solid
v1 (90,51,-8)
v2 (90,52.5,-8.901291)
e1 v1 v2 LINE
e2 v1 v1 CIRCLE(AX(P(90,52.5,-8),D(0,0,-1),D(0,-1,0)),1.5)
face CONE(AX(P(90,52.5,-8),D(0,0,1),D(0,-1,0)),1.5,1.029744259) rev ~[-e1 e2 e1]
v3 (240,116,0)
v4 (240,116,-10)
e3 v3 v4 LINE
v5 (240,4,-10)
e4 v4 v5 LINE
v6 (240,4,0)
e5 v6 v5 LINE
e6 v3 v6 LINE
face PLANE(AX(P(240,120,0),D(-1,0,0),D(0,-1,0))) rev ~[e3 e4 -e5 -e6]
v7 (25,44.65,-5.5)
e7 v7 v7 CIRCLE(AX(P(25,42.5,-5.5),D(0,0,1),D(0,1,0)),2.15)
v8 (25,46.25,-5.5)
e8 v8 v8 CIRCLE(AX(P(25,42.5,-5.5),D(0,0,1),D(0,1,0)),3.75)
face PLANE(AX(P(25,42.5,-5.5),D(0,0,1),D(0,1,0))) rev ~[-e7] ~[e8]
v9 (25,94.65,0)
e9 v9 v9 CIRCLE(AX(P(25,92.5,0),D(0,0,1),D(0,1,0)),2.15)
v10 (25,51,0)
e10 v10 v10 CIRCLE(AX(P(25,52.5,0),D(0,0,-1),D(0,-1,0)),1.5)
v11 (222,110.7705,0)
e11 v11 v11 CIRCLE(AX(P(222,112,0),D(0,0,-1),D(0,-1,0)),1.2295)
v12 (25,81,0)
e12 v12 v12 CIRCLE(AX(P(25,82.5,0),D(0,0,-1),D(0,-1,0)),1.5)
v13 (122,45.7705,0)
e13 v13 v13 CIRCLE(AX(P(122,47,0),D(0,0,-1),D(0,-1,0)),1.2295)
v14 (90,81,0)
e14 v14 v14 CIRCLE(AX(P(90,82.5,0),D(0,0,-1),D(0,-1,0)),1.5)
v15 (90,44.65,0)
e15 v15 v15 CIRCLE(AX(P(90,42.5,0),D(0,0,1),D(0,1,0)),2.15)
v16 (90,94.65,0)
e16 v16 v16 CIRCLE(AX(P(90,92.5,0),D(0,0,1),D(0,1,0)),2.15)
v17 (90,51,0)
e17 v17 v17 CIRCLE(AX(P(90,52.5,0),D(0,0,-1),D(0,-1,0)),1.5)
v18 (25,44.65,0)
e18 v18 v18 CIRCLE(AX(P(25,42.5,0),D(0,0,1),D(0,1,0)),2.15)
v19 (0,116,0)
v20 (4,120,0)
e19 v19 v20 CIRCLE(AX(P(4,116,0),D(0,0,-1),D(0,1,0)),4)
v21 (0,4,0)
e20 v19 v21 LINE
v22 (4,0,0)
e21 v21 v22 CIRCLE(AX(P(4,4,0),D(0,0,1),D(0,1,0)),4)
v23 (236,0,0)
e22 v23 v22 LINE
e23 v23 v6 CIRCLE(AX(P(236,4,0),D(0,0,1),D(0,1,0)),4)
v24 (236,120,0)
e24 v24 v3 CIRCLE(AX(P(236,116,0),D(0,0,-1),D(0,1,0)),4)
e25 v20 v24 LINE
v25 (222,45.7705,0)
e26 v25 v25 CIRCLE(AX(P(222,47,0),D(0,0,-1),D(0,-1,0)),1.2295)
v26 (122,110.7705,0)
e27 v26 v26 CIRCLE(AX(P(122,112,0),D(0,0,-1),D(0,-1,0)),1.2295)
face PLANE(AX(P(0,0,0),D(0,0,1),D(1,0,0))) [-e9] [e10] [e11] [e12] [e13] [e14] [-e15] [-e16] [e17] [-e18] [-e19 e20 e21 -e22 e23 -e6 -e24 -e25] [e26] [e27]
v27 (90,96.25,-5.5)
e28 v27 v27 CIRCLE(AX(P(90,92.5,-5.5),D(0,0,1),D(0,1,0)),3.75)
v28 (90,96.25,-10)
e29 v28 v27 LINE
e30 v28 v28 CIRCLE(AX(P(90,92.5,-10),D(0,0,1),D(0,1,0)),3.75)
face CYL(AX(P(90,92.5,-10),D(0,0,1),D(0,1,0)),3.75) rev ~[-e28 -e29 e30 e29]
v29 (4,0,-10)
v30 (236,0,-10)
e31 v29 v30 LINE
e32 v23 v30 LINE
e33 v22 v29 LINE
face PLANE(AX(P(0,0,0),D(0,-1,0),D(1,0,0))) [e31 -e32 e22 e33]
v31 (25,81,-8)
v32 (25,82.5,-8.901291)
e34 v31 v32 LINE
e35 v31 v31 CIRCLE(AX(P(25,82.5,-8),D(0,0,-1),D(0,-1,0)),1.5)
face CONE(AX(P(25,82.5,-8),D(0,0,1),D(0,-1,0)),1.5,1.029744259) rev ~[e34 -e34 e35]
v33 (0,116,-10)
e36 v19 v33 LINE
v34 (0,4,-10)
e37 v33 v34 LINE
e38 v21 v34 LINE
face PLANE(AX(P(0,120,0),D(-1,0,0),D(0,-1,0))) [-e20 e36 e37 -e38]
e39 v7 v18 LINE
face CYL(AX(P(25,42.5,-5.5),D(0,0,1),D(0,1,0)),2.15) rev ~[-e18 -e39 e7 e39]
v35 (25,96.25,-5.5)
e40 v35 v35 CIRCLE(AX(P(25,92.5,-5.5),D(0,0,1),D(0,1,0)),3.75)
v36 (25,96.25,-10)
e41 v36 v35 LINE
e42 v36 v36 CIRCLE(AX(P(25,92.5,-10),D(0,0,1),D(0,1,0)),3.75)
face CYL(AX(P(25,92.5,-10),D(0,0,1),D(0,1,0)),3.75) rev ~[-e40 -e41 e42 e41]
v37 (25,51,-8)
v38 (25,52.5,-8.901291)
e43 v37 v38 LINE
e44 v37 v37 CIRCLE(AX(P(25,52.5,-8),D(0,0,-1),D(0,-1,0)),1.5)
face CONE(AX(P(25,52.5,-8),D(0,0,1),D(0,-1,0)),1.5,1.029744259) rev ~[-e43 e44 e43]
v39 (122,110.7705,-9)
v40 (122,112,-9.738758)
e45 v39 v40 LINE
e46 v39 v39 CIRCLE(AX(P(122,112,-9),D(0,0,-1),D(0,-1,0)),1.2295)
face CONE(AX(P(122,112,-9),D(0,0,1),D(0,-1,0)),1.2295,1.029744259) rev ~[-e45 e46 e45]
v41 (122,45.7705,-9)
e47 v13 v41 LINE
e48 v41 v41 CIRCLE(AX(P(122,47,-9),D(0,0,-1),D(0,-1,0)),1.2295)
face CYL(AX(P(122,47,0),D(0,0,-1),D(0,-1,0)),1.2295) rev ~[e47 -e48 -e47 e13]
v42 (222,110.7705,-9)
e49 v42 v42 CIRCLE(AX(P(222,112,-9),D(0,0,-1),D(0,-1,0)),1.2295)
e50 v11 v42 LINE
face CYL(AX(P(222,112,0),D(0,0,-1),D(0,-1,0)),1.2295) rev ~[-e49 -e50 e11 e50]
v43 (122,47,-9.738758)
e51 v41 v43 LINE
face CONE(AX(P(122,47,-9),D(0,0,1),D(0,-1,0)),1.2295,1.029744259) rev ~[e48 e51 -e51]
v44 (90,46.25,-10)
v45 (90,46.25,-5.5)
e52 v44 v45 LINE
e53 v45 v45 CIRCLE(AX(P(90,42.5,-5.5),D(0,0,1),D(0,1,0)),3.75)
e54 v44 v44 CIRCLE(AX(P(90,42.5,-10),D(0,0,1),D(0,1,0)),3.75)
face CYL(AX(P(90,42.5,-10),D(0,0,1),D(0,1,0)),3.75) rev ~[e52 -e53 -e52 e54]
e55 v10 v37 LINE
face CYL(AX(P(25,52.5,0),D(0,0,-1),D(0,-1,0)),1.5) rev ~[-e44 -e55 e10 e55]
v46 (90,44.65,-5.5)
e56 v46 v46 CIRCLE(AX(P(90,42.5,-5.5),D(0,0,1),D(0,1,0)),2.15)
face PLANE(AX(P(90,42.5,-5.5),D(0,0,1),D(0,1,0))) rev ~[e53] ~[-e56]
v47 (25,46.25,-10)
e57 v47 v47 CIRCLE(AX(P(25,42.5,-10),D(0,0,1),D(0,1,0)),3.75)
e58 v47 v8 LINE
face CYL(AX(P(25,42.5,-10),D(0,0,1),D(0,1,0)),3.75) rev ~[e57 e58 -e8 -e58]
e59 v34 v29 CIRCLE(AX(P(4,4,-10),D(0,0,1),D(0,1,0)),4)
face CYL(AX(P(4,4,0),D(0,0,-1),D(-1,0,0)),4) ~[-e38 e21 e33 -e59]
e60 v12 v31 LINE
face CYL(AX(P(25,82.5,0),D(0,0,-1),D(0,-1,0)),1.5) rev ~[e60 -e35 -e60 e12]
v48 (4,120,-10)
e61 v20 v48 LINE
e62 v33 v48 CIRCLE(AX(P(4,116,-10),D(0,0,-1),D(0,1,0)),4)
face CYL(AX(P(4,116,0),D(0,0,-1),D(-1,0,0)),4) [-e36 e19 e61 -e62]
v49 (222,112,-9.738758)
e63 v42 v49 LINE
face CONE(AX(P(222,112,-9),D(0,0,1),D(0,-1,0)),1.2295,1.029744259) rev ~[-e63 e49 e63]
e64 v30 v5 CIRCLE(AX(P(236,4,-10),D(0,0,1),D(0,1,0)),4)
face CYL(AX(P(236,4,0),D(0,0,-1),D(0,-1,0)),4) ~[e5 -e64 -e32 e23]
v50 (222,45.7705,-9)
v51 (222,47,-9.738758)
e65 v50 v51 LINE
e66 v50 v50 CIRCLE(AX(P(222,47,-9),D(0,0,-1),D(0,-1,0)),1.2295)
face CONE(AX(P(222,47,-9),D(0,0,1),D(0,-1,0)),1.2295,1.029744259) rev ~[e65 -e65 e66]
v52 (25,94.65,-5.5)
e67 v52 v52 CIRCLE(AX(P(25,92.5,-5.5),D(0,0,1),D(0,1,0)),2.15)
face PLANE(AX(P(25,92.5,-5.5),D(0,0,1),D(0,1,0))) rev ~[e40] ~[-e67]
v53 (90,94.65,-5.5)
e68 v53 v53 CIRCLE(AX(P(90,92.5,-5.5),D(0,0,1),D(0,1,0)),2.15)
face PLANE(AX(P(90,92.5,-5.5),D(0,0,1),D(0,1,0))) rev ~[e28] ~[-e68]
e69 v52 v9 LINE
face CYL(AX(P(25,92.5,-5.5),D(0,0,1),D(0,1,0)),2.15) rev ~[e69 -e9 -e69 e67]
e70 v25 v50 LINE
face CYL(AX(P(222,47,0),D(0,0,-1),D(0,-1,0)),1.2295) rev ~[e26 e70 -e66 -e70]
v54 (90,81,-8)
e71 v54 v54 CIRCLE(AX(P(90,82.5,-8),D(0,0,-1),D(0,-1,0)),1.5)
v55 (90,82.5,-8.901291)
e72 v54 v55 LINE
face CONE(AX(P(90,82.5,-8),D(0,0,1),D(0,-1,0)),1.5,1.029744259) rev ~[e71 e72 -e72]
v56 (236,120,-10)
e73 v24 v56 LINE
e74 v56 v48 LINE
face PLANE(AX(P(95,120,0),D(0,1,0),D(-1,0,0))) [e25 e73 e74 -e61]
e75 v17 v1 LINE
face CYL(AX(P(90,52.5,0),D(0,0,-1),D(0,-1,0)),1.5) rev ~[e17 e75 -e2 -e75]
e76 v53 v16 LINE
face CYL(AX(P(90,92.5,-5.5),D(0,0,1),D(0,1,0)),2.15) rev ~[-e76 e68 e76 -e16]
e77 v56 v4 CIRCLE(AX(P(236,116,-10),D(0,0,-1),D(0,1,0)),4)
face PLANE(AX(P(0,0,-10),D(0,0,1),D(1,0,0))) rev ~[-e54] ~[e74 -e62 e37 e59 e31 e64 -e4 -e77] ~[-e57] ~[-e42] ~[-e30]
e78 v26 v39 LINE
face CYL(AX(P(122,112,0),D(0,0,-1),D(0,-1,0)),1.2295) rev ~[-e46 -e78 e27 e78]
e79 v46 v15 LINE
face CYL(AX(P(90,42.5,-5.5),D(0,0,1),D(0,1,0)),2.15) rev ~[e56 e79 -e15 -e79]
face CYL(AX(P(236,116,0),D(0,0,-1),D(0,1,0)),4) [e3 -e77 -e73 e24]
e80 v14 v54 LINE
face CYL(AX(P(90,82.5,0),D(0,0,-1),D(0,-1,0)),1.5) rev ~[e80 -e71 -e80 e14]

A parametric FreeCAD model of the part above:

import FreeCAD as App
import Part
import Sketcher

V = App.Vector


def edges_at(feature, points):
    """Names of the edges that pass closest to the given points."""
    edges = feature.Shape.Edges
    near = lambda p: min(range(len(edges)), key=lambda i: edges[i].distToShape(Part.Vertex(*p))[0])
    return sorted({f"Edge{near(p) + 1}" for p in points})

doc = App.newDocument("Part")
body = doc.addObject("PartDesign::Body", "Body")

# Sketch on XY plane
sketch1 = doc.addObject("Sketcher::SketchObject", "Sketch")
body.addObject(sketch1)
sketch1.AttachmentSupport = (doc.XY_Plane, [""])
sketch1.MapMode = "FlatFace"
sketch1.addGeometry([
    Part.LineSegment(V(0, 120, 0), V(0, 0, 0)),  # 0
    Part.LineSegment(V(0, 0, 0), V(240, 0, 0)),  # 1
    Part.LineSegment(V(240, 0, 0), V(240, 120, 0)),  # 2
    Part.LineSegment(V(240, 120, 0), V(0, 120, 0)),  # 3
    Part.Circle(V(25, 42.5, 0), V(0, 0, 1), 1.5),  # 4
    Part.Circle(V(90, 42.5, 0), V(0, 0, 1), 1.5),  # 5
    Part.Circle(V(25, 92.5, 0), V(0, 0, 1), 1.5),  # 6
    Part.Circle(V(90, 92.5, 0), V(0, 0, 1), 1.5),  # 7
], False)
sketch1.addConstraint([
    Sketcher.Constraint("Coincident", 0, 2, 1, 1),
    Sketcher.Constraint("Coincident", 1, 2, 2, 1),
    Sketcher.Constraint("Coincident", 2, 2, 3, 1),
    Sketcher.Constraint("Coincident", 3, 2, 0, 1),
    Sketcher.Constraint("Vertical", 0),
    Sketcher.Constraint("Horizontal", 1),
    Sketcher.Constraint("Vertical", 2),
    Sketcher.Constraint("Horizontal", 3),
    Sketcher.Constraint("Coincident", 0, 2, -1, 1),
    Sketcher.Constraint("Equal", 4, 5),
    Sketcher.Constraint("Equal", 5, 6),
    Sketcher.Constraint("Equal", 6, 7),
    Sketcher.Constraint("Horizontal", 4, 3, 5, 3),
    Sketcher.Constraint("Horizontal", 6, 3, 7, 3),
    Sketcher.Constraint("Vertical", 4, 3, 6, 3),
    Sketcher.Constraint("Vertical", 5, 3, 7, 3),
    Sketcher.Constraint("Diameter", 4, 3.0),
    Sketcher.Constraint("DistanceX", 1, 1, 1, 2, 240.0),
    Sketcher.Constraint("DistanceY", 0, 2, 0, 1, 120.0),
    Sketcher.Constraint("DistanceX", 4, 3, 5, 3, 65.0),
    Sketcher.Constraint("DistanceY", 4, 3, 6, 3, 50.0),
    Sketcher.Constraint("DistanceY", -1, 1, 4, 3, 42.5),
    Sketcher.Constraint("DistanceX", -1, 1, 4, 3, 25.0),
])
pad1 = doc.addObject("PartDesign::Pad", "Pad")
body.addObject(pad1)
pad1.Profile = sketch1
pad1.Length = 10
pad1.Reversed = True

# Sketch on XY plane
sketch2 = doc.addObject("Sketcher::SketchObject", "Sketch001")
body.addObject(sketch2)
sketch2.AttachmentSupport = (doc.XY_Plane, [""])
sketch2.MapMode = "FlatFace"
sketch2.addGeometry([
    Part.Circle(V(122, 112, 0), V(0, 0, 1), 1.2295),
    Part.Circle(V(222, 112, 0), V(0, 0, 1), 1.2295),
    Part.Circle(V(222, 47, 0), V(0, 0, 1), 1.2295),
    Part.Circle(V(122, 47, 0), V(0, 0, 1), 1.2295),
], False)
sketch2.addConstraint([
    Sketcher.Constraint("Equal", 0, 1),
    Sketcher.Constraint("Equal", 1, 2),
    Sketcher.Constraint("Equal", 2, 3),
    Sketcher.Constraint("Horizontal", 0, 3, 1, 3),
    Sketcher.Constraint("Horizontal", 2, 3, 3, 3),
    Sketcher.Constraint("Vertical", 1, 3, 2, 3),
    Sketcher.Constraint("Vertical", 0, 3, 3, 3),
    Sketcher.Constraint("Diameter", 0, 2.459),
    Sketcher.Constraint("DistanceX", -1, 1, 0, 3, 122.0),
    Sketcher.Constraint("DistanceY", -1, 1, 0, 3, 112.0),
    Sketcher.Constraint("DistanceX", -1, 1, 1, 3, 222.0),
    Sketcher.Constraint("DistanceY", -1, 1, 2, 3, 47.0),
])
doc.recompute()
hole = doc.addObject("PartDesign::Hole", "Hole")
body.addObject(hole)
hole.Profile = sketch2
hole.ThreadType = "None"
hole.Diameter = 2.459
hole.DepthType = "Dimension"
hole.Depth = 9
hole.DrillPoint = "Angled"
hole.DrillPointAngle = 118

# Sketch on XY plane
sketch3 = doc.addObject("Sketcher::SketchObject", "Sketch002")
body.addObject(sketch3)
sketch3.AttachmentSupport = (doc.XY_Plane, [""])
sketch3.MapMode = "FlatFace"
sketch3.AttachmentOffset = App.Placement(V(0, 0, -10), App.Rotation())
sketch3.addGeometry([
    Part.Circle(V(25, 42.5, 0), V(0, 0, 1), 2.15),
    Part.Circle(V(90, 42.5, 0), V(0, 0, 1), 2.15),
    Part.Circle(V(90, 92.5, 0), V(0, 0, 1), 2.15),
    Part.Circle(V(25, 92.5, 0), V(0, 0, 1), 2.15),
], False)
sketch3.addConstraint([
    Sketcher.Constraint("Equal", 0, 1),
    Sketcher.Constraint("Equal", 1, 2),
    Sketcher.Constraint("Equal", 2, 3),
    Sketcher.Constraint("Horizontal", 0, 3, 1, 3),
    Sketcher.Constraint("Horizontal", 2, 3, 3, 3),
    Sketcher.Constraint("Vertical", 1, 3, 2, 3),
    Sketcher.Constraint("Vertical", 0, 3, 3, 3),
    Sketcher.Constraint("Diameter", 0, 4.3),
    Sketcher.Constraint("DistanceX", -1, 1, 0, 3, 25.0),
    Sketcher.Constraint("DistanceX", -1, 1, 1, 3, 90.0),
    Sketcher.Constraint("DistanceY", 1, 3, 2, 3, 50.0),
    Sketcher.Constraint("DistanceY", -1, 1, 0, 3, 42.5),
])
doc.recompute()
hole2 = doc.addObject("PartDesign::Hole", "Hole001")
body.addObject(hole2)
hole2.Profile = sketch3
hole2.ThreadType = "None"
hole2.Diameter = 4.3
hole2.DepthType = "Dimension"
hole2.Depth = 13
hole2.DrillPoint = "Angled"
hole2.DrillPointAngle = 118
hole2.HoleCutType = "Counterbore"
hole2.HoleCutDiameter = 7.5
hole2.HoleCutDepth = 4.5
hole2.Reversed = True

# Sketch on XY plane
sketch4 = doc.addObject("Sketcher::SketchObject", "Sketch003")
body.addObject(sketch4)
sketch4.AttachmentSupport = (doc.XY_Plane, [""])
sketch4.MapMode = "FlatFace"
sketch4.addGeometry([
    Part.Circle(V(25, 82.5, 0), V(0, 0, 1), 1.5),
    Part.Circle(V(25, 52.5, 0), V(0, 0, 1), 1.5),
    Part.Circle(V(90, 52.5, 0), V(0, 0, 1), 1.5),
    Part.Circle(V(90, 82.5, 0), V(0, 0, 1), 1.5),
], False)
sketch4.addConstraint([
    Sketcher.Constraint("Equal", 0, 1),
    Sketcher.Constraint("Equal", 1, 2),
    Sketcher.Constraint("Equal", 2, 3),
    Sketcher.Constraint("Horizontal", 1, 3, 2, 3),
    Sketcher.Constraint("Horizontal", 0, 3, 3, 3),
    Sketcher.Constraint("Vertical", 0, 3, 1, 3),
    Sketcher.Constraint("Vertical", 2, 3, 3, 3),
    Sketcher.Constraint("Diameter", 0, 3.0),
    Sketcher.Constraint("DistanceX", -1, 1, 0, 3, 25.0),
    Sketcher.Constraint("DistanceX", -1, 1, 2, 3, 90.0),
    Sketcher.Constraint("DistanceY", 1, 3, 0, 3, 30.0),
    Sketcher.Constraint("DistanceY", -1, 1, 0, 3, 82.5),
])
doc.recompute()
hole3 = doc.addObject("PartDesign::Hole", "Hole002")
body.addObject(hole3)
hole3.Profile = sketch4
hole3.ThreadType = "None"
hole3.Diameter = 3
hole3.DepthType = "Dimension"
hole3.Depth = 8
hole3.DrillPoint = "Angled"
hole3.DrillPointAngle = 118
doc.recompute()

fillet = doc.addObject("PartDesign::Fillet", "Fillet")
body.addObject(fillet)
fillet.Base = (hole3, edges_at(hole3, [
    (240, 0, -5),
    (0, 0, -5),
    (0, 120, -5),
    (240, 120, -5),
]))
fillet.Radius = 4

doc.recompute()
